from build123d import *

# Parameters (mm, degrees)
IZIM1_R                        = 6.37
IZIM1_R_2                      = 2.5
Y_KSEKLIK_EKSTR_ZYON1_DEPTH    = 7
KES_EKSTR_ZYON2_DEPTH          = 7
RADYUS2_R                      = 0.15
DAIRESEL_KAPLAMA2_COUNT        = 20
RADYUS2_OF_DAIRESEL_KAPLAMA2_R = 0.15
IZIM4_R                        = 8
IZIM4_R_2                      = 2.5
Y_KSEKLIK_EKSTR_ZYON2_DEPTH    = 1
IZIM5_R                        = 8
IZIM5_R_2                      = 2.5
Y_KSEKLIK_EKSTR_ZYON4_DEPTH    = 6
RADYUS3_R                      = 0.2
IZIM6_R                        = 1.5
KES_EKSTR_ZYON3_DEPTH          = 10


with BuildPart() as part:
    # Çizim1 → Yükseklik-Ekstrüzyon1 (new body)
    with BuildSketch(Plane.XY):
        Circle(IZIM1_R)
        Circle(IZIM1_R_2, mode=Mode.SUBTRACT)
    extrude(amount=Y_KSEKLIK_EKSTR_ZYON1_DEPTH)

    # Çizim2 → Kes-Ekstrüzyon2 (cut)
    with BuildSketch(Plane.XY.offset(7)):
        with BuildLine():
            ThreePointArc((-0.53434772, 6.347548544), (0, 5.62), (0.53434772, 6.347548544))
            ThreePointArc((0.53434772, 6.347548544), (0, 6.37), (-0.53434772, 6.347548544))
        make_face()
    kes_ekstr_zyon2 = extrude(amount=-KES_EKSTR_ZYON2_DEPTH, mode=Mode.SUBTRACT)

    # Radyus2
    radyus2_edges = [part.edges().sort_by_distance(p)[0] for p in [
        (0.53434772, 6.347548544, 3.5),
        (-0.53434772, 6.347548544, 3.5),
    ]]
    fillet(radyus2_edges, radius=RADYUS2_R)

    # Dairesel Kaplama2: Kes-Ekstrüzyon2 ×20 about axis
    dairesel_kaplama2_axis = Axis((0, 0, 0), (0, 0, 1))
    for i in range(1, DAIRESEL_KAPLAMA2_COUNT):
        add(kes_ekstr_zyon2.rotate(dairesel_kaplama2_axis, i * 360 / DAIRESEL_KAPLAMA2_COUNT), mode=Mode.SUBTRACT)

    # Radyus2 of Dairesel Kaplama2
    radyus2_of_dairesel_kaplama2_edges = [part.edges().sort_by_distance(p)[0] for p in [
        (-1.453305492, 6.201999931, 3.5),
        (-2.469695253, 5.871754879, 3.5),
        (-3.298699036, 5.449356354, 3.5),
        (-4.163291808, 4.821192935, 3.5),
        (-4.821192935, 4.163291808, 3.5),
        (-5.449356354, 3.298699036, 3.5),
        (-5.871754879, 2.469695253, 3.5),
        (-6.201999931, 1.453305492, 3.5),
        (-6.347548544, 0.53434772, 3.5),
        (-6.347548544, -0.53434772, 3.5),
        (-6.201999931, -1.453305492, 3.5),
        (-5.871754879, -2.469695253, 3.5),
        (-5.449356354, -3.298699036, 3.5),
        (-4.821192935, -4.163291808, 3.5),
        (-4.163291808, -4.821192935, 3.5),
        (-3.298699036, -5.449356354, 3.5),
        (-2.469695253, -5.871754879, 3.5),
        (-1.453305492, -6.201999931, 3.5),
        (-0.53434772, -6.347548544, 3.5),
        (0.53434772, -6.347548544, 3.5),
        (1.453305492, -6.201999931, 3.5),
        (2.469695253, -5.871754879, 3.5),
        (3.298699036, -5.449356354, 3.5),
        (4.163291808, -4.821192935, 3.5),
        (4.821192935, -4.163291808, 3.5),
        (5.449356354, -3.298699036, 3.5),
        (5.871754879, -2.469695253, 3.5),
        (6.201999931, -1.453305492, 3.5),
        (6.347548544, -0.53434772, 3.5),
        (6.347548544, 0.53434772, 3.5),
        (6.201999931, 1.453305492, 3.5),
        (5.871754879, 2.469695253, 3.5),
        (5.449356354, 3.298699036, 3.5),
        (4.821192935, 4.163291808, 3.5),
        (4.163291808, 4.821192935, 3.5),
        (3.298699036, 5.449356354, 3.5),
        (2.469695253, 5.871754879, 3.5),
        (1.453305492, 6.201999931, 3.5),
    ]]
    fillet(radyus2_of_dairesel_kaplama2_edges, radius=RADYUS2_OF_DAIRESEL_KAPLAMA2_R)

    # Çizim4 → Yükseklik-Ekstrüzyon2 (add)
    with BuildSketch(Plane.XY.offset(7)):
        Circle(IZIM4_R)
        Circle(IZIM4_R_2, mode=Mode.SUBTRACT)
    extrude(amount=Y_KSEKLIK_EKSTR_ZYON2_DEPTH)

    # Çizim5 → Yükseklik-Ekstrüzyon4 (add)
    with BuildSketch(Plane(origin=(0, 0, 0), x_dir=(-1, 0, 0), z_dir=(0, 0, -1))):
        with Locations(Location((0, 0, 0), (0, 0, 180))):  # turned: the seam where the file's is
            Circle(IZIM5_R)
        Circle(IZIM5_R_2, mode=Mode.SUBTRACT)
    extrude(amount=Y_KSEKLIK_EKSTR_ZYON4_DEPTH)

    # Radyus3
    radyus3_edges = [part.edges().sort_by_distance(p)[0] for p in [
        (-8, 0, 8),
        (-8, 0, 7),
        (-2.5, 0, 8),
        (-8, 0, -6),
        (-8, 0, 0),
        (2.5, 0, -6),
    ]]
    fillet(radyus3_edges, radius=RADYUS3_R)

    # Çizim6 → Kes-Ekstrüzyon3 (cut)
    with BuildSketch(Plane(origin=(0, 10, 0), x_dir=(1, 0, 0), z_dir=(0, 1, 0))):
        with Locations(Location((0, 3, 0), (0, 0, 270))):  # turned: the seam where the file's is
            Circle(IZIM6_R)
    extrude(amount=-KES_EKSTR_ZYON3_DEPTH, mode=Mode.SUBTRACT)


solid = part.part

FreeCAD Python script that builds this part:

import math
import FreeCAD as App
import Part
import Sketcher
Q = App.Units.Quantity


def edges_at(feature, points):
    """Names of the edges that pass closest to the given points."""
    edges = feature.Shape.Edges
    near = lambda p: min(range(len(edges)), key=lambda i: edges[i].distToShape(Part.Vertex(*p))[0])
    return sorted({f"Edge{near(p) + 1}" for p in points})

doc = App.newDocument("Part")
body = doc.addObject("PartDesign::Body", "Body")

sketch1 = body.newObject("Sketcher::SketchObject", "Sketch")
sketch1.AttachmentSupport = (doc.getObject("XY_Plane"), [""])
sketch1.MapMode = "FlatFace"
sketch1.addGeometry([
    Part.Circle(App.Vector(0, 0, 0), App.Vector(0, 0, 1), 6.4),
    Part.Circle(App.Vector(0, 0, 0), App.Vector(0, 0, 1), 2.5),
], False)
sketch1.addConstraint([
    Sketcher.Constraint("Coincident", 0, 3, -1, 1),
    Sketcher.Constraint("Coincident", 1, 3, -1, 1),
    Sketcher.Constraint("Diameter", 1, Q("5 mm")),
    Sketcher.Constraint("Diameter", 0, Q("12.74 mm")),
])
pad1 = body.newObject("PartDesign::Pad", "Pad")
pad1.Profile = sketch1
pad1.Length = 7

sketch2 = body.newObject("Sketcher::SketchObject", "Sketch001")
sketch2.AttachmentSupport = (doc.getObject("XY_Plane"), [""])
sketch2.MapMode = "FlatFace"
sketch2.AttachmentOffset = App.Placement(App.Vector(0, 0, 7), App.Rotation())
sketch2.addGeometry([
    Part.ArcOfCircle(Part.Circle(App.Vector(0, 6.2, 0), App.Vector(0, 0, 1), 0.6), math.radians(163), math.radians(377)),
    Part.ArcOfCircle(Part.Circle(App.Vector(0, 0, 0), App.Vector(0, 0, 1), 6.4), math.radians(85.19), math.radians(94.81)),
], False)
sketch2.addConstraint([
    Sketcher.Constraint("Coincident", 0, 1, 1, 2),
    Sketcher.Constraint("Coincident", 1, 1, 0, 2),
    Sketcher.Constraint("Coincident", 1, 3, -1, 1),
    Sketcher.Constraint("PointOnObject", 0, 3, -2),
    Sketcher.Constraint("Radius", 0, Q("0.56 mm")),
    Sketcher.Constraint("Radius", 1, Q("6.37 mm")),
    Sketcher.Constraint("DistanceY", -1, 1, 0, 3, Q("6.18 mm")),
])
pocket1 = body.newObject("PartDesign::Pocket", "Pocket")
pocket1.Profile = sketch2
pocket1.Length = 7
doc.recompute()

fillet = body.newObject("PartDesign::Fillet", "Fillet")
fillet.Base = (pocket1, edges_at(pocket1, [(0.534, 6.348, 3.5), (-0.534, 6.348, 3.5)]))
fillet.Radius = 0.15
doc.recompute()

polarpattern = body.newObject("PartDesign::PolarPattern", "PolarPattern")
polarpattern.Originals = [pocket1]
polarpattern.Axis = (doc.getObject("Z_Axis"), [""])
polarpattern.Angle = 360
polarpattern.Occurrences = 20
body.Tip = polarpattern
doc.recompute()

fillet2 = body.newObject("PartDesign::Fillet", "Fillet001")
fillet2.Base = (polarpattern, edges_at(polarpattern, [
    (-1.453, 6.202, 3.5),
    (-2.47, 5.872, 3.5),
    (-3.299, 5.449, 3.5),
    (-4.163, 4.821, 3.5),
    (-4.821, 4.163, 3.5),
    (-5.449, 3.299, 3.5),
    (-5.872, 2.47, 3.5),
    (-6.202, 1.453, 3.5),
    (-6.348, 0.534, 3.5),
    (-6.348, -0.534, 3.5),
    (-6.202, -1.453, 3.5),
    (-5.872, -2.47, 3.5),
    (-5.449, -3.299, 3.5),
    (-4.821, -4.163, 3.5),
    (-4.163, -4.821, 3.5),
    (-3.299, -5.449, 3.5),
    (-2.47, -5.872, 3.5),
    (-1.453, -6.202, 3.5),
    (-0.534, -6.348, 3.5),
    (0.534, -6.348, 3.5),
    (1.453, -6.202, 3.5),
    (2.47, -5.872, 3.5),
    (3.299, -5.449, 3.5),
    (4.163, -4.821, 3.5),
    (4.821, -4.163, 3.5),
    (5.449, -3.299, 3.5),
    (5.872, -2.47, 3.5),
    (6.202, -1.453, 3.5),
    (6.348, -0.534, 3.5),
    (6.348, 0.534, 3.5),
    (6.202, 1.453, 3.5),
    (5.872, 2.47, 3.5),
    (5.449, 3.299, 3.5),
    (4.821, 4.163, 3.5),
    (4.163, 4.821, 3.5),
    (3.299, 5.449, 3.5),
    (2.47, 5.872, 3.5),
    (1.453, 6.202, 3.5),
]))
fillet2.Radius = 0.15

sketch3 = body.newObject("Sketcher::SketchObject", "Sketch002")
sketch3.AttachmentSupport = (doc.getObject("XY_Plane"), [""])
sketch3.MapMode = "FlatFace"
sketch3.AttachmentOffset = App.Placement(App.Vector(0, 0, 7), App.Rotation())
sketch3.addGeometry([
    Part.Circle(App.Vector(0, 0, 0), App.Vector(0, 0, 1), 8),
    Part.Circle(App.Vector(0, 0, 0), App.Vector(0, 0, 1), 2.5),
], False)
sketch3.addConstraint([
    Sketcher.Constraint("Coincident", 0, 3, -1, 1),
    Sketcher.Constraint("Coincident", 1, 3, -1, 1),
    Sketcher.Constraint("Diameter", 0, Q("16 mm")),
    Sketcher.Constraint("Diameter", 1, Q("5 mm")),
])
pad2 = body.newObject("PartDesign::Pad", "Pad001")
pad2.Profile = sketch3
pad2.Length = 1

sketch4 = body.newObject("Sketcher::SketchObject", "Sketch003")
sketch4.AttachmentSupport = (doc.getObject("XY_Plane"), [""])
sketch4.MapMode = "FlatFace"
sketch4.addGeometry([
    Part.Circle(App.Vector(0, 0, 0), App.Vector(0, 0, 1), 8),
    Part.Circle(App.Vector(0, 0, 0), App.Vector(0, 0, 1), 2.5),
], False)
sketch4.addConstraint([
    Sketcher.Constraint("Coincident", 0, 3, -1, 1),
    Sketcher.Constraint("Coincident", 1, 3, -1, 1),
    Sketcher.Constraint("Diameter", 0, Q("16 mm")),
    Sketcher.Constraint("Diameter", 1, Q("5 mm")),
])
pad3 = body.newObject("PartDesign::Pad", "Pad002")
pad3.Profile = sketch4
pad3.Length = 6
pad3.Reversed = True
doc.recompute()

fillet3 = body.newObject("PartDesign::Fillet", "Fillet002")
fillet3.Base = (pad3, edges_at(pad3, [
    (-8, 0, 8),
    (-8, 0, 7),
    (-2.5, 0, 8),
    (-8, 0, -6),
    (-8, 0, 0),
    (2.5, 0, -6),
]))
fillet3.Radius = 0.2

sketch5 = body.newObject("Sketcher::SketchObject", "Sketch004")
sketch5.AttachmentSupport = (doc.getObject("XZ_Plane"), [""])
sketch5.MapMode = "FlatFace"
sketch5.AttachmentOffset = App.Placement(App.Vector(0, 0, -10), App.Rotation())
sketch5.addGeometry(Part.Circle(App.Vector(0, -3, 0), App.Vector(0, 0, 1), 1.5), False)
sketch5.addConstraint([
    Sketcher.Constraint("PointOnObject", 0, 3, -2),
    Sketcher.Constraint("Diameter", 0, Q("3 mm")),
    Sketcher.Constraint("DistanceY", 0, 3, -1, 1, Q("3 mm")),
])
pocket2 = body.newObject("PartDesign::Pocket", "Pocket001")
pocket2.Profile = sketch5
pocket2.Length = 10
pocket2.Reversed = True

doc.recompute()
